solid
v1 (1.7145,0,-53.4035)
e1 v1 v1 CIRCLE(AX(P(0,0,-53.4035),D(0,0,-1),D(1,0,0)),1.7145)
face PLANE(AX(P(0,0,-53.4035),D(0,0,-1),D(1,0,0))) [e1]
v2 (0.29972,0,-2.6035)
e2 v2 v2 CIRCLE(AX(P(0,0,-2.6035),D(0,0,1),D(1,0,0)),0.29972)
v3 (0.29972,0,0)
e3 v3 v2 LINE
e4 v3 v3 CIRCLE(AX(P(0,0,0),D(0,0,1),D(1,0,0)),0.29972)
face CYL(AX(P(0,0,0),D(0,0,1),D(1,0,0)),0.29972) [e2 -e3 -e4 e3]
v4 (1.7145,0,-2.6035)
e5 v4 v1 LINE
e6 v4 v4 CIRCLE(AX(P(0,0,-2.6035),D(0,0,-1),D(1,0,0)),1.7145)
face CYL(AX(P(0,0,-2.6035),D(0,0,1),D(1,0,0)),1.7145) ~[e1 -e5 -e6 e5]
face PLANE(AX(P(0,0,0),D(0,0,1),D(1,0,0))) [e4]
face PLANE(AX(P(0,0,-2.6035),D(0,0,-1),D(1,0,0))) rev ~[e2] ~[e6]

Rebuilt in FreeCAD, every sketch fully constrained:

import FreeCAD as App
import Part
import Sketcher
from FreeCAD import Vector
Q = App.Units.Quantity

doc = App.newDocument("Part")
body = doc.addObject("PartDesign::Body", "Body")

# Sketch on XY plane
sketch1 = body.newObject("Sketcher::SketchObject", "Sketch")
sketch1.AttachmentSupport = (doc.getObject("XY_Plane"), [""])
sketch1.MapMode = "FlatFace"
sketch1.addGeometry(Part.Circle(Vector(0, 0, 0), Vector(0, 0, 1), 0.3), False)
sketch1.addConstraint([
    Sketcher.Constraint("Coincident", 0, 3, -1, 1),
    Sketcher.Constraint("Diameter", 0, Q("0.0236 in")),
])
pad1 = body.newObject("PartDesign::Pad", "Pad")
pad1.Profile = sketch1
pad1.Length = Q("0.1025 in")
pad1.Reversed = True

# Sketch on XY plane
sketch2 = body.newObject("Sketcher::SketchObject", "Sketch001")
sketch2.AttachmentSupport = (doc.getObject("XY_Plane"), [""])
sketch2.MapMode = "FlatFace"
sketch2.AttachmentOffset = App.Placement(Vector(0, 0, -0.1025 * 25.4), App.Rotation())
sketch2.addGeometry(Part.Circle(Vector(0, 0, 0), Vector(0, 0, 1), 1.7), False)
sketch2.addConstraint([
    Sketcher.Constraint("Coincident", 0, 3, -1, 1),
    Sketcher.Constraint("Diameter", 0, Q("0.135 in")),
])
pad2 = body.newObject("PartDesign::Pad", "Pad001")
pad2.Profile = sketch2
pad2.Length = Q("2 in")
pad2.Reversed = True

doc.recompute()
